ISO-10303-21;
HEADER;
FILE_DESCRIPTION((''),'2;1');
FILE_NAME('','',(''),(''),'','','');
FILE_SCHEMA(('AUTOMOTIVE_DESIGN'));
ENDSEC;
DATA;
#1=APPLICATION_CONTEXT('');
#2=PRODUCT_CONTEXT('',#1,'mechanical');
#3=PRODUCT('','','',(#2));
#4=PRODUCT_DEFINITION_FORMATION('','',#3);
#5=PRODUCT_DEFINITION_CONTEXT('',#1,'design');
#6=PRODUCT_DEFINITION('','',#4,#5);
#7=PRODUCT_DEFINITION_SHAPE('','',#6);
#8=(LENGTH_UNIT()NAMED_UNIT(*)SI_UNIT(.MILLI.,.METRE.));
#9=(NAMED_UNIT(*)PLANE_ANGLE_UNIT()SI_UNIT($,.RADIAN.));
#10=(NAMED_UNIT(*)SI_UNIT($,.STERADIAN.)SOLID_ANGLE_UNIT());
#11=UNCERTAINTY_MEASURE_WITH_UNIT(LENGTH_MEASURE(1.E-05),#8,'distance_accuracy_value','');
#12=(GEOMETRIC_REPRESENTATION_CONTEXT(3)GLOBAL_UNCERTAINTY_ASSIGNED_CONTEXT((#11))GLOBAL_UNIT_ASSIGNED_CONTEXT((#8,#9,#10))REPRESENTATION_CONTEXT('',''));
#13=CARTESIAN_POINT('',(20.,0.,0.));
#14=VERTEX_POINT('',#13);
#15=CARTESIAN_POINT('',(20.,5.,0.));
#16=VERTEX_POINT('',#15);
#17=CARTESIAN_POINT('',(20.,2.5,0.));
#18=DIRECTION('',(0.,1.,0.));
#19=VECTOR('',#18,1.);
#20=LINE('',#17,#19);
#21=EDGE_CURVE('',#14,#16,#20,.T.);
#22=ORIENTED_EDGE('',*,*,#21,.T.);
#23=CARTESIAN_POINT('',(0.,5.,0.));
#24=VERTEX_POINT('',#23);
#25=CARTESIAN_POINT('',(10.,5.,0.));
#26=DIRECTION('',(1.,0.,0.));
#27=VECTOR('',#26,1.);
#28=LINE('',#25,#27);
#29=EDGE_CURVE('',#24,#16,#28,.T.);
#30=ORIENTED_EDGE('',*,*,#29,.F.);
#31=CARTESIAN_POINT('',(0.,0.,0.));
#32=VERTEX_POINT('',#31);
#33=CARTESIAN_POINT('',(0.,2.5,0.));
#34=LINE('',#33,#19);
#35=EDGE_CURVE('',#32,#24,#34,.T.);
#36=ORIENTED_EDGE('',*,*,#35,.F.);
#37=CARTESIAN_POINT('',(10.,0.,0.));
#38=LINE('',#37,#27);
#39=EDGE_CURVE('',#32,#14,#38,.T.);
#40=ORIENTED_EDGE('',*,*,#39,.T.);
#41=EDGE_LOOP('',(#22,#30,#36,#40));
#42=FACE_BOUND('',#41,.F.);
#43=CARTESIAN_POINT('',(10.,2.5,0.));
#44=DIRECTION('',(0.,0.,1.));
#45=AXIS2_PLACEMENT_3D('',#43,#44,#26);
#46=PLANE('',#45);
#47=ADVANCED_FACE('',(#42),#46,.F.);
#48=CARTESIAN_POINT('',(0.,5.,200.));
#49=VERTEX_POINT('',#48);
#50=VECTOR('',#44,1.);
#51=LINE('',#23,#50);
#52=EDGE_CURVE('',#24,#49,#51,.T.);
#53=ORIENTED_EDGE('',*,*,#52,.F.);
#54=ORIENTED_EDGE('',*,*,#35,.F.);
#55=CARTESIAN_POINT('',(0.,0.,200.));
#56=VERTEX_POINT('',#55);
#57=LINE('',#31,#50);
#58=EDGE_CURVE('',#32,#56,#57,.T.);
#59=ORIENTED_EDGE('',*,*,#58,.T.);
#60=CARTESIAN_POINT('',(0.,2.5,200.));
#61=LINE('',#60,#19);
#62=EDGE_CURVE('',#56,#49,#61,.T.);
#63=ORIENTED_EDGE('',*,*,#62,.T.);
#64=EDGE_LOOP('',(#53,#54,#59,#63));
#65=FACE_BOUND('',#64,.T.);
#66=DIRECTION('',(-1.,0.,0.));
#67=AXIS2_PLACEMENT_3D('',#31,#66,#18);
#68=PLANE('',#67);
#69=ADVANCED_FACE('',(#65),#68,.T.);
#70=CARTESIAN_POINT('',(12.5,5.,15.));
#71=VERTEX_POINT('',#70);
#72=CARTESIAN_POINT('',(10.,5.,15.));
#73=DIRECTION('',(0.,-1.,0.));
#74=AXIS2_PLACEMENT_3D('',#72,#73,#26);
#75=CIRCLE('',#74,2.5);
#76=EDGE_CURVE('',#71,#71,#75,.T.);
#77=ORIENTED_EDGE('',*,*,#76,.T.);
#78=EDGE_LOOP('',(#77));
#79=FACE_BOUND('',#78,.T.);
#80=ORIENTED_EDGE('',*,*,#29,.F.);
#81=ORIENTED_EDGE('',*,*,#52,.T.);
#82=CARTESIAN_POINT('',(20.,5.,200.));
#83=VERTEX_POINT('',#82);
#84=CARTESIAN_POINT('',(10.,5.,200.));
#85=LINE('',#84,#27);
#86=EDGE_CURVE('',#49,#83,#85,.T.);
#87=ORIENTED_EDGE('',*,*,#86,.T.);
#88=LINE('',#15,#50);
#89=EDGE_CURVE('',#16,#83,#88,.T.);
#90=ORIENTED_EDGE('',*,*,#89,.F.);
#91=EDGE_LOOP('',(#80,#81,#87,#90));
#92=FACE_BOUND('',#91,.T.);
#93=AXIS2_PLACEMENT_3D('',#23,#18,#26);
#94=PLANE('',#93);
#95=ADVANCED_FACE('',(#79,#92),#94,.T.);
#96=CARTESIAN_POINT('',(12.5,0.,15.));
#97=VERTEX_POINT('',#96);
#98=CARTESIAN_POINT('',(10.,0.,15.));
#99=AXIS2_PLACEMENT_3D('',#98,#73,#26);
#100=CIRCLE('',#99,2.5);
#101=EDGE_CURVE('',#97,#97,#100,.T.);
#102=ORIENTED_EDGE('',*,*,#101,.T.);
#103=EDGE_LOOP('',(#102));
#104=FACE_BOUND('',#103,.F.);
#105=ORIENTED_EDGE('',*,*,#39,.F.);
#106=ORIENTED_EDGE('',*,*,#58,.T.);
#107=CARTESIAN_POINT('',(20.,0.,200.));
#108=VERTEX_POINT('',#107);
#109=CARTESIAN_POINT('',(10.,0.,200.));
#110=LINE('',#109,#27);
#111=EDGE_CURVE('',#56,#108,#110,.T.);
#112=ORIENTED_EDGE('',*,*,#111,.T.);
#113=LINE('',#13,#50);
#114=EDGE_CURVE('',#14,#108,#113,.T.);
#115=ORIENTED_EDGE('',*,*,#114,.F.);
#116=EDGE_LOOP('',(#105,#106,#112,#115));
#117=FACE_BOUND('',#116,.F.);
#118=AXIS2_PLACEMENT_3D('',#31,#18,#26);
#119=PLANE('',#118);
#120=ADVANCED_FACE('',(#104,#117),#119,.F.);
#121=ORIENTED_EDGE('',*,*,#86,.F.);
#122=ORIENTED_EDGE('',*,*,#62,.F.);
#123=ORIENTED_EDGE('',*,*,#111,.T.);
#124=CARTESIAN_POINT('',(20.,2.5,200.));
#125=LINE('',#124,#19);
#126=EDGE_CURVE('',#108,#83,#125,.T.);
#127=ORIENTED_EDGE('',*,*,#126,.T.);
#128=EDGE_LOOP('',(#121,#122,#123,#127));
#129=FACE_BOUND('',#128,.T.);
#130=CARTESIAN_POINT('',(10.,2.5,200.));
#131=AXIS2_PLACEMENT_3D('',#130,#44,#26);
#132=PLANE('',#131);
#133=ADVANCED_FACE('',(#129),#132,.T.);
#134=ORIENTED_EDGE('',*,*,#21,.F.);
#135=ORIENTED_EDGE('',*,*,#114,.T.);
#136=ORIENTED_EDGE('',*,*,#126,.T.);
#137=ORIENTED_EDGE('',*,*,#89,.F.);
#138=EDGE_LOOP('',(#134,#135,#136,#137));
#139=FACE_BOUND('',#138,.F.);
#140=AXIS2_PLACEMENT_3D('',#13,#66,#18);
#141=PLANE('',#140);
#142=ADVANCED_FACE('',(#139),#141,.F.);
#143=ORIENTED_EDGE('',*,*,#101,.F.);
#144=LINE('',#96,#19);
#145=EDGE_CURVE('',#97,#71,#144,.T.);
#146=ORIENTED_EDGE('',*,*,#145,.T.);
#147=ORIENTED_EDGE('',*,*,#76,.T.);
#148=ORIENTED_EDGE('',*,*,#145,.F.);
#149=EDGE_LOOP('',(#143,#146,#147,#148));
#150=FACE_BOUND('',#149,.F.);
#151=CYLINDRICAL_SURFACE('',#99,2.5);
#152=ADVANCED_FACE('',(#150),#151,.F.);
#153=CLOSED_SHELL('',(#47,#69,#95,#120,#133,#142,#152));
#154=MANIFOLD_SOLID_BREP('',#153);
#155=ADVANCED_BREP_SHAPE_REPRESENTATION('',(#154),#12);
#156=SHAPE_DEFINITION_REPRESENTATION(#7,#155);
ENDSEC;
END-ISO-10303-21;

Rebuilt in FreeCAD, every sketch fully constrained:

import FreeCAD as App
import Part
import Sketcher

V = App.Vector
Q = App.Units.Quantity

doc = App.newDocument("Part")
body = doc.addObject("PartDesign::Body", "Body")

# Sketch on XY plane
sketch1 = doc.addObject("Sketcher::SketchObject", "Sketch")
body.addObject(sketch1)
sketch1.AttachmentSupport = (doc.XY_Plane, [""])
sketch1.MapMode = "FlatFace"
sketch1.addGeometry(Part.LineSegment(V(0, 5, 0), V(0, 0, 0)), False)
sketch1.addGeometry(Part.LineSegment(V(0, 0, 0), V(20, 0, 0)), False)
sketch1.addGeometry(Part.LineSegment(V(20, 0, 0), V(20, 5, 0)), False)
sketch1.addGeometry(Part.LineSegment(V(20, 5, 0), V(0, 5, 0)), False)
sketch1.addConstraint(Sketcher.Constraint("Coincident", 0, 2, 1, 1))
sketch1.addConstraint(Sketcher.Constraint("Coincident", 1, 2, 2, 1))
sketch1.addConstraint(Sketcher.Constraint("Coincident", 2, 2, 3, 1))
sketch1.addConstraint(Sketcher.Constraint("Coincident", 3, 2, 0, 1))
sketch1.addConstraint(Sketcher.Constraint("Vertical", 0))
sketch1.addConstraint(Sketcher.Constraint("Horizontal", 1))
sketch1.addConstraint(Sketcher.Constraint("Vertical", 2))
sketch1.addConstraint(Sketcher.Constraint("Horizontal", 3))
sketch1.addConstraint(Sketcher.Constraint("Coincident", 0, 2, -1, 1))
sketch1.addConstraint(Sketcher.Constraint("DistanceX", 1, 1, 1, 2, Q("20 mm")))
sketch1.addConstraint(Sketcher.Constraint("DistanceY", 0, 2, 0, 1, Q("5 mm")))
pad1 = doc.addObject("PartDesign::Pad", "Pad")
body.addObject(pad1)
pad1.Profile = sketch1
pad1.Length = 200

# Sketch on XZ plane
sketch2 = doc.addObject("Sketcher::SketchObject", "Sketch001")
body.addObject(sketch2)
sketch2.AttachmentSupport = (doc.XZ_Plane, [""])
sketch2.MapMode = "FlatFace"
sketch2.addGeometry(Part.Circle(V(10, 15, 0), V(0, 0, 1), 2.5), False)
sketch2.addConstraint(Sketcher.Constraint("Diameter", 0, Q("5 mm")))
sketch2.addConstraint(Sketcher.Constraint("DistanceX", -1, 1, 0, 3, Q("10 mm")))
sketch2.addConstraint(Sketcher.Constraint("DistanceY", -1, 1, 0, 3, Q("15 mm")))
pocket1 = doc.addObject("PartDesign::Pocket", "Pocket")
body.addObject(pocket1)
pocket1.Profile = sketch2
pocket1.Length = 5

doc.recompute()
